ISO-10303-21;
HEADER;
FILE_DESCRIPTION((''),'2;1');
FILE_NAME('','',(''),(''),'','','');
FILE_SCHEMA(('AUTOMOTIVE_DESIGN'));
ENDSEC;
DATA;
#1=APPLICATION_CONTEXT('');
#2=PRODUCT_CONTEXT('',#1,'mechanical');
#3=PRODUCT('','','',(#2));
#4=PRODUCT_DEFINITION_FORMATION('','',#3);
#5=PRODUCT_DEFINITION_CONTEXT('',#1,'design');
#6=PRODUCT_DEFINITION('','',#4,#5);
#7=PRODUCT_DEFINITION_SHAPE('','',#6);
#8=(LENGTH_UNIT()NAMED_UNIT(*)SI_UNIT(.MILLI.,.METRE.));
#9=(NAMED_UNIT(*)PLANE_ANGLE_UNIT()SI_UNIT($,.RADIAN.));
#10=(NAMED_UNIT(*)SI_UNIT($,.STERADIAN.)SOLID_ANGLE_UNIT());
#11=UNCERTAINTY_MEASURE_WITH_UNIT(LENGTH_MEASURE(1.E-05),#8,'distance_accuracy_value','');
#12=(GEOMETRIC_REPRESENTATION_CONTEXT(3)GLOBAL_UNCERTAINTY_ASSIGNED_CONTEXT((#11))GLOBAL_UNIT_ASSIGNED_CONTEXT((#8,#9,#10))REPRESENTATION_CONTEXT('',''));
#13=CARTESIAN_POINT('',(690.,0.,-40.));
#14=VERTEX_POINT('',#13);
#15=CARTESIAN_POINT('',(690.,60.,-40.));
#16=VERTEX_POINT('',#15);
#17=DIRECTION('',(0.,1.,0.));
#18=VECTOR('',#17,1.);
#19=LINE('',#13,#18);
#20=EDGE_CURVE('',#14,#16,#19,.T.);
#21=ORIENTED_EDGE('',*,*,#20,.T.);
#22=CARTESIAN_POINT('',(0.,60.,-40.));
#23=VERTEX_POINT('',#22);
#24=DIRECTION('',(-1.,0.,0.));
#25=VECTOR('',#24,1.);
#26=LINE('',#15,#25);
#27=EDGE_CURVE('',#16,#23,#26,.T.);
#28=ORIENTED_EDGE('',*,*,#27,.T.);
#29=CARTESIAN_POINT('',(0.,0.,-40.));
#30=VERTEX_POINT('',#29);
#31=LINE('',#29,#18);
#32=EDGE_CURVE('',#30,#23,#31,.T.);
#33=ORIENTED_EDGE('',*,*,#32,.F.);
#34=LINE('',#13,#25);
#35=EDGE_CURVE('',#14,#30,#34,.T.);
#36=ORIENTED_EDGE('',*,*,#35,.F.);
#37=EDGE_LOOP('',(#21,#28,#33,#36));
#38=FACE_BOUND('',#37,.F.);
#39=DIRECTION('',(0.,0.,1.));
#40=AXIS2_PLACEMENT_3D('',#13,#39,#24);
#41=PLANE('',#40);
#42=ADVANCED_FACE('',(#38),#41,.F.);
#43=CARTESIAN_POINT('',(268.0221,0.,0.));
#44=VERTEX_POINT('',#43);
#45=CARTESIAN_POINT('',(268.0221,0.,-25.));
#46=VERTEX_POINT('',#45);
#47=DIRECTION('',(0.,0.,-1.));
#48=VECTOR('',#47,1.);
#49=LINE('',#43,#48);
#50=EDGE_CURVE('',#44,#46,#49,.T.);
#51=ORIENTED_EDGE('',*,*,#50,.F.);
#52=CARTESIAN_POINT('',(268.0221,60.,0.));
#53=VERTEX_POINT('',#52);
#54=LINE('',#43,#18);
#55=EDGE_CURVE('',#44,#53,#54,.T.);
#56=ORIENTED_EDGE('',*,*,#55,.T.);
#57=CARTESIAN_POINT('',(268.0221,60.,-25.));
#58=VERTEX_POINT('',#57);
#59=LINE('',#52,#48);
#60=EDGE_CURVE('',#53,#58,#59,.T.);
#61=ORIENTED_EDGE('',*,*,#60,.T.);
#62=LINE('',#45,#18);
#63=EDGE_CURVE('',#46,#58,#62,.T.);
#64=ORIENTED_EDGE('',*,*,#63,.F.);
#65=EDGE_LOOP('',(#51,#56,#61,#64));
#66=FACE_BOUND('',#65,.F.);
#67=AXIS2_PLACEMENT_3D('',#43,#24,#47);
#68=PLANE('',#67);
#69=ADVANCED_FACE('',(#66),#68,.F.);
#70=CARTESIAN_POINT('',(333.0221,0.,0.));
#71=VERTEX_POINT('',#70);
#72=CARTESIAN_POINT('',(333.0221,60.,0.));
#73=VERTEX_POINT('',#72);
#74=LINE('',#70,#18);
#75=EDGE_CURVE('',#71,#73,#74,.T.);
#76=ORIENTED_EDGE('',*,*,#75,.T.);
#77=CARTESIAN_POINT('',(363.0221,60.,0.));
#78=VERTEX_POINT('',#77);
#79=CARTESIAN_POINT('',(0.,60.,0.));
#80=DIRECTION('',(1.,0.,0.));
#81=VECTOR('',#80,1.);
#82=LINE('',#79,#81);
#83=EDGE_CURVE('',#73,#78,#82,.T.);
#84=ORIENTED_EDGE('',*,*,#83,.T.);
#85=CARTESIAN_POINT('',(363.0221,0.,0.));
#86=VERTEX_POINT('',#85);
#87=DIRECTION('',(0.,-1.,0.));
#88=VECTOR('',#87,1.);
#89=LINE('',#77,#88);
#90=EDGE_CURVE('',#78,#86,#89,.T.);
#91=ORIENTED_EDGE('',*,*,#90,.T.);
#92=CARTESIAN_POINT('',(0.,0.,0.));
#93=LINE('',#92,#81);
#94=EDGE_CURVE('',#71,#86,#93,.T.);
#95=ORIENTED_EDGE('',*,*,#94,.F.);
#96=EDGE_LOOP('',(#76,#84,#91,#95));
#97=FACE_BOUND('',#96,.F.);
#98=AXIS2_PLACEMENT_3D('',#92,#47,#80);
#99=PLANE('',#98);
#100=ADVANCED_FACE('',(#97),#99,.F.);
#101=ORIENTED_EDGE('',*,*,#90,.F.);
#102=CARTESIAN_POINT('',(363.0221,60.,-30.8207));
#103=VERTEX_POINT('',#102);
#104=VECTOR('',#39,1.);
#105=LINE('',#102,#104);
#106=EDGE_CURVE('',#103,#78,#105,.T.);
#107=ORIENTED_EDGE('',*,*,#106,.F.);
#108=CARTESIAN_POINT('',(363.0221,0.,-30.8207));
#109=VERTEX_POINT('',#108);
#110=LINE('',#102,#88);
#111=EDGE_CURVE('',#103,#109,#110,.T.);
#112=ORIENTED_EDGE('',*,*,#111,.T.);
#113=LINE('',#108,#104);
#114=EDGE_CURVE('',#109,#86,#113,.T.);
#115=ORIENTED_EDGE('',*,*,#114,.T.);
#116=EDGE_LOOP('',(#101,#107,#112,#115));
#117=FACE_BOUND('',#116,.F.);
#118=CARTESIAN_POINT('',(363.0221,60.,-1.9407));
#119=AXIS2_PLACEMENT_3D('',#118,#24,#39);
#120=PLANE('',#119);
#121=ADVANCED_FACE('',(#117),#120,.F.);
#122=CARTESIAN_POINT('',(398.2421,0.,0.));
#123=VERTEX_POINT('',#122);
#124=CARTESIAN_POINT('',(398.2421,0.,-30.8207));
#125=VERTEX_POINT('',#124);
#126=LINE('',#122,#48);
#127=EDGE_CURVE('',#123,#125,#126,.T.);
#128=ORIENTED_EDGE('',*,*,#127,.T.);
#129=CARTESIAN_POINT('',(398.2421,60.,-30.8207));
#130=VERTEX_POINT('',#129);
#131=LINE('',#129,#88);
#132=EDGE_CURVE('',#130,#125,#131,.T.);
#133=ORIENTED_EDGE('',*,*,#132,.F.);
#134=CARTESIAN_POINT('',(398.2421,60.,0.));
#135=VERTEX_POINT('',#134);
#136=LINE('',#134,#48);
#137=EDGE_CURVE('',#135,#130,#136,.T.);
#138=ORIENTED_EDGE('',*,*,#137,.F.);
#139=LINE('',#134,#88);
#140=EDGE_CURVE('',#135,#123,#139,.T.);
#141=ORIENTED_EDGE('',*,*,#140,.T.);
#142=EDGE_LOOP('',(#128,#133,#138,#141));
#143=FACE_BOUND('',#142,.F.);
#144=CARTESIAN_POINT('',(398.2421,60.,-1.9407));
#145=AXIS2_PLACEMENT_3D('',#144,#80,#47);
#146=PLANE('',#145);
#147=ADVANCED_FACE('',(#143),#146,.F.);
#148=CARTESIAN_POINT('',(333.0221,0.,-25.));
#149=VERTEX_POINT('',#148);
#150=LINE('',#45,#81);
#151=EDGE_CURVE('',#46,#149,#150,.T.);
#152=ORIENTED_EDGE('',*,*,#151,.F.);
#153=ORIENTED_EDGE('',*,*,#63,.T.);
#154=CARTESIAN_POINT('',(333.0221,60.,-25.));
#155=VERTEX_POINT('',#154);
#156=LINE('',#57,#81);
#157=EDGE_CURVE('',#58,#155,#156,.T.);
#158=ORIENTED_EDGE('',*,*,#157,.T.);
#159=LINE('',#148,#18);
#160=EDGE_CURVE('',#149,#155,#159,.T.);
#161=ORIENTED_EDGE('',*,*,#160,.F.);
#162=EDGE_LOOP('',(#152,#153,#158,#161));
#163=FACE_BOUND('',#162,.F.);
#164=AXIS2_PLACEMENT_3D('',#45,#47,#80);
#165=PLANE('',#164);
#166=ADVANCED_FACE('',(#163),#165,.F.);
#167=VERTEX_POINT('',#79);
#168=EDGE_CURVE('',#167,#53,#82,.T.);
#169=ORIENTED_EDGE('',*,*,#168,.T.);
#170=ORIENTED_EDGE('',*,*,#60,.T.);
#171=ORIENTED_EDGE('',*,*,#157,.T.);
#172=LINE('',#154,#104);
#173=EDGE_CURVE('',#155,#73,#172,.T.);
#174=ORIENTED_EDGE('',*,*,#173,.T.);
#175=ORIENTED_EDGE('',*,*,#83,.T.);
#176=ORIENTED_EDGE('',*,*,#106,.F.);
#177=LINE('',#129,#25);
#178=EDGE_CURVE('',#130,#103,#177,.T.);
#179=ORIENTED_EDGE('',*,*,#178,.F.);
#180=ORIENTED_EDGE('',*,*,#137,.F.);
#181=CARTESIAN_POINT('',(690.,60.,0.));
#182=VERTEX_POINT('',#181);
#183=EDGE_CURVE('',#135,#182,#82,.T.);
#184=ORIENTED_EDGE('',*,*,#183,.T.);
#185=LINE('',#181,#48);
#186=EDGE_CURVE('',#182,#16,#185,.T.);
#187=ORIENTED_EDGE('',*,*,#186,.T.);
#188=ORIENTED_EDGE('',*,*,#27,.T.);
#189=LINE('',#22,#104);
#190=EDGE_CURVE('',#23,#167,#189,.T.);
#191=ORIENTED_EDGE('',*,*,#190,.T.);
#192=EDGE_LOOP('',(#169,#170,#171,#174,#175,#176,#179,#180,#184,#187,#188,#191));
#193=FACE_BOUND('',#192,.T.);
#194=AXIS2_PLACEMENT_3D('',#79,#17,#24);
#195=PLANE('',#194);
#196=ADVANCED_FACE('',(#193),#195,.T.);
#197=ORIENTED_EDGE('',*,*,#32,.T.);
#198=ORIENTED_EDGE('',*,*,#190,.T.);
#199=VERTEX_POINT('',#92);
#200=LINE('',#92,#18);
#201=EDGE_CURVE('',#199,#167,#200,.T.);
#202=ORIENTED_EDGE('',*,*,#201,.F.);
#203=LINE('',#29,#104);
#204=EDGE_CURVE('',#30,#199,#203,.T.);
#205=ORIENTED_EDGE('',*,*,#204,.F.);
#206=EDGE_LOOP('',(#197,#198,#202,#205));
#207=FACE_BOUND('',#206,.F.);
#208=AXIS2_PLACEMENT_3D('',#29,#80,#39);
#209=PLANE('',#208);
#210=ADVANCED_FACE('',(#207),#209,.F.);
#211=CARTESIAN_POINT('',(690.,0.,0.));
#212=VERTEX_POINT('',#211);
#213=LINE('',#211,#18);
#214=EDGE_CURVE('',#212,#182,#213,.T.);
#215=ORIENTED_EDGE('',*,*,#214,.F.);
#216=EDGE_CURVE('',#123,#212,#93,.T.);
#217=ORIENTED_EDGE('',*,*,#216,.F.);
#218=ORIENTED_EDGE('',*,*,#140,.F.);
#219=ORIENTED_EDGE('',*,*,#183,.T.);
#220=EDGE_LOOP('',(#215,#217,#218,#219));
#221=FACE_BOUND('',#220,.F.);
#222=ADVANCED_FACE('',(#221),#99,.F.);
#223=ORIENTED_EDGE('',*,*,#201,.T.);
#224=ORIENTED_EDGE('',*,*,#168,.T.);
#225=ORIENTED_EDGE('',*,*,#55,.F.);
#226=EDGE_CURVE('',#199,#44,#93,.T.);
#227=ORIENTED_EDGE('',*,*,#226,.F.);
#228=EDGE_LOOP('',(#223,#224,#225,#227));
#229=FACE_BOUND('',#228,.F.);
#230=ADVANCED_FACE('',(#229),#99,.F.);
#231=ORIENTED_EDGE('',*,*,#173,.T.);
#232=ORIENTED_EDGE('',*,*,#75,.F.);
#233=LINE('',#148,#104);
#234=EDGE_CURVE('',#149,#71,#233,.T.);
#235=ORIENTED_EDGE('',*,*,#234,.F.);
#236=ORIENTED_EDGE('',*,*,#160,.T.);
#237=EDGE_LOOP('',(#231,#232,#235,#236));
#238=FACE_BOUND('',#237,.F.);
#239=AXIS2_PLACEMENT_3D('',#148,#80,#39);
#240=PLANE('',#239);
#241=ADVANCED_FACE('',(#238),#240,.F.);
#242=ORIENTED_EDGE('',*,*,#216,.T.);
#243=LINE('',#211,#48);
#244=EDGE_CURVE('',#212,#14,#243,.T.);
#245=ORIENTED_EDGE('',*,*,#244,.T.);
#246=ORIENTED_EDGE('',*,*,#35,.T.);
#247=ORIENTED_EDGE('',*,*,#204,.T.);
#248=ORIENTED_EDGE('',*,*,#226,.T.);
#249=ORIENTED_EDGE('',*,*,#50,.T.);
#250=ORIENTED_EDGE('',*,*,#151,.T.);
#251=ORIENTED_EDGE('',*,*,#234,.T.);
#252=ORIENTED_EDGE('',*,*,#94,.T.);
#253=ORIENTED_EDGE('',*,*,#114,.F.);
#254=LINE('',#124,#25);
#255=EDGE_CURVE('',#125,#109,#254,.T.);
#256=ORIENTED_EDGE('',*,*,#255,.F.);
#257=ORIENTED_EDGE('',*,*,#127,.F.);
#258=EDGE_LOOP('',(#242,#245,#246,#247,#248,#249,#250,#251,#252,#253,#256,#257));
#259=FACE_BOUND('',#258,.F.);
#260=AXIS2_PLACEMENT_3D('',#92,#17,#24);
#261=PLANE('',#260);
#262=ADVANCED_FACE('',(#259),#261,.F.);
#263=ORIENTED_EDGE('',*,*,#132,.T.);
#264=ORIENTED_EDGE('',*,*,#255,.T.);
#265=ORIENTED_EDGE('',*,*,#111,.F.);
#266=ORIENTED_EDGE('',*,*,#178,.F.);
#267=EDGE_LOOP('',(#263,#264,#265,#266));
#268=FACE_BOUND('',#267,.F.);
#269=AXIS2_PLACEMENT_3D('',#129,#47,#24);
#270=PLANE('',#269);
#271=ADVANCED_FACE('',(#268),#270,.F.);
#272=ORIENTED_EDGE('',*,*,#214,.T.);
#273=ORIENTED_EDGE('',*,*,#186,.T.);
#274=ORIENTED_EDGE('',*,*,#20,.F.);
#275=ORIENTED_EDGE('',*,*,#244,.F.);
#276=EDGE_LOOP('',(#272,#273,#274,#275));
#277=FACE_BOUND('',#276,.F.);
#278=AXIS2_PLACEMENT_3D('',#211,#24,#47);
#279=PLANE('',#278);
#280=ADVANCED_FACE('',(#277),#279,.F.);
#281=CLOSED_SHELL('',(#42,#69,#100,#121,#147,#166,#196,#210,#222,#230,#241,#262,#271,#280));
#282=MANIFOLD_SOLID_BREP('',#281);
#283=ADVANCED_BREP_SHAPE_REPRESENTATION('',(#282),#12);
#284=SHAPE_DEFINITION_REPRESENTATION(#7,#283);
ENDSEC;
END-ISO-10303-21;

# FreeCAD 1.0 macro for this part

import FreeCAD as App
import Part
import Sketcher

V = App.Vector

doc = App.newDocument("Part")
body = doc.addObject("PartDesign::Body", "Body")

# Sketch on XZ plane
sketch1 = doc.addObject("Sketcher::SketchObject", "Sketch")
body.addObject(sketch1)
sketch1.AttachmentSupport = (doc.XZ_Plane, [""])
sketch1.MapMode = "FlatFace"
sketch1.addGeometry([
    Part.LineSegment(V(0, -40, 0), V(0, 0, 0)),
    Part.LineSegment(V(0, 0, 0), V(690, 0, 0)),
    Part.LineSegment(V(690, 0, 0), V(690, -40, 0)),
    Part.LineSegment(V(690, -40, 0), V(0, -40, 0)),
], False)
sketch1.addConstraint([
    Sketcher.Constraint("Coincident", 0, 2, 1, 1),
    Sketcher.Constraint("Coincident", 1, 2, 2, 1),
    Sketcher.Constraint("Coincident", 2, 2, 3, 1),
    Sketcher.Constraint("Coincident", 3, 2, 0, 1),
    Sketcher.Constraint("Vertical", 0),
    Sketcher.Constraint("Horizontal", 1),
    Sketcher.Constraint("Vertical", 2),
    Sketcher.Constraint("Horizontal", 3),
    Sketcher.Constraint("Coincident", 0, 2, -1, 1),
    Sketcher.Constraint("DistanceX", 1, 1, 1, 2, 690.0),
    Sketcher.Constraint("DistanceY", 0, 1, 0, 2, 40.0),
])
pad1 = doc.addObject("PartDesign::Pad", "Pad")
body.addObject(pad1)
pad1.Profile = sketch1
pad1.Length = 60
pad1.Reversed = True

# Sketch on XZ plane
sketch2 = doc.addObject("Sketcher::SketchObject", "Sketch001")
body.addObject(sketch2)
sketch2.AttachmentSupport = (doc.XZ_Plane, [""])
sketch2.MapMode = "FlatFace"
sketch2.AttachmentOffset = App.Placement(V(0, 0, -60), App.Rotation())
sketch2.addGeometry([
    Part.LineSegment(V(398.2421, -30.8207, 0), V(363.0221, -30.8207, 0)),
    Part.LineSegment(V(363.0221, -30.8207, 0), V(363.0221, 0, 0)),
    Part.LineSegment(V(363.0221, 0, 0), V(398.2421, 0, 0)),
    Part.LineSegment(V(398.2421, 0, 0), V(398.2421, -30.8207, 0)),
], False)
sketch2.addConstraint([
    Sketcher.Constraint("Coincident", 0, 2, 1, 1),
    Sketcher.Constraint("Coincident", 1, 2, 2, 1),
    Sketcher.Constraint("Coincident", 2, 2, 3, 1),
    Sketcher.Constraint("Coincident", 3, 2, 0, 1),
    Sketcher.Constraint("Horizontal", 0),
    Sketcher.Constraint("Vertical", 1),
    Sketcher.Constraint("Horizontal", 2),
    Sketcher.Constraint("Vertical", 3),
    Sketcher.Constraint("PointOnObject", 1, 2, -1),
    Sketcher.Constraint("DistanceX", 0, 2, 0, 1, 35.22),
    Sketcher.Constraint("DistanceY", 1, 1, 1, 2, 30.8207),
    Sketcher.Constraint("DistanceX", -1, 1, 0, 2, 363.022),
])
pocket1 = doc.addObject("PartDesign::Pocket", "Pocket")
body.addObject(pocket1)
pocket1.Profile = sketch2
pocket1.Length = 60
pocket1.Reversed = True

# Sketch on XZ plane
sketch3 = doc.addObject("Sketcher::SketchObject", "Sketch002")
body.addObject(sketch3)
sketch3.AttachmentSupport = (doc.XZ_Plane, [""])
sketch3.MapMode = "FlatFace"
sketch3.addGeometry([
    Part.LineSegment(V(333.0221, 0, 0), V(268.0221, 0, 0)),
    Part.LineSegment(V(268.0221, 0, 0), V(268.0221, -25, 0)),
    Part.LineSegment(V(268.0221, -25, 0), V(333.0221, -25, 0)),
    Part.LineSegment(V(333.0221, -25, 0), V(333.0221, 0, 0)),
], False)
sketch3.addConstraint([
    Sketcher.Constraint("Coincident", 0, 2, 1, 1),
    Sketcher.Constraint("Coincident", 1, 2, 2, 1),
    Sketcher.Constraint("Coincident", 2, 2, 3, 1),
    Sketcher.Constraint("Coincident", 3, 2, 0, 1),
    Sketcher.Constraint("Horizontal", 0),
    Sketcher.Constraint("Vertical", 1),
    Sketcher.Constraint("Horizontal", 2),
    Sketcher.Constraint("Vertical", 3),
    Sketcher.Constraint("PointOnObject", 0, 2, -1),
    Sketcher.Constraint("DistanceX", 0, 2, 0, 1, 65.0),
    Sketcher.Constraint("DistanceY", 1, 2, 1, 1, 25.0),
    Sketcher.Constraint("DistanceX", -1, 1, 0, 2, 268.022),
])
pocket2 = doc.addObject("PartDesign::Pocket", "Pocket001")
body.addObject(pocket2)
pocket2.Profile = sketch3
pocket2.Length = 60

doc.recompute()
